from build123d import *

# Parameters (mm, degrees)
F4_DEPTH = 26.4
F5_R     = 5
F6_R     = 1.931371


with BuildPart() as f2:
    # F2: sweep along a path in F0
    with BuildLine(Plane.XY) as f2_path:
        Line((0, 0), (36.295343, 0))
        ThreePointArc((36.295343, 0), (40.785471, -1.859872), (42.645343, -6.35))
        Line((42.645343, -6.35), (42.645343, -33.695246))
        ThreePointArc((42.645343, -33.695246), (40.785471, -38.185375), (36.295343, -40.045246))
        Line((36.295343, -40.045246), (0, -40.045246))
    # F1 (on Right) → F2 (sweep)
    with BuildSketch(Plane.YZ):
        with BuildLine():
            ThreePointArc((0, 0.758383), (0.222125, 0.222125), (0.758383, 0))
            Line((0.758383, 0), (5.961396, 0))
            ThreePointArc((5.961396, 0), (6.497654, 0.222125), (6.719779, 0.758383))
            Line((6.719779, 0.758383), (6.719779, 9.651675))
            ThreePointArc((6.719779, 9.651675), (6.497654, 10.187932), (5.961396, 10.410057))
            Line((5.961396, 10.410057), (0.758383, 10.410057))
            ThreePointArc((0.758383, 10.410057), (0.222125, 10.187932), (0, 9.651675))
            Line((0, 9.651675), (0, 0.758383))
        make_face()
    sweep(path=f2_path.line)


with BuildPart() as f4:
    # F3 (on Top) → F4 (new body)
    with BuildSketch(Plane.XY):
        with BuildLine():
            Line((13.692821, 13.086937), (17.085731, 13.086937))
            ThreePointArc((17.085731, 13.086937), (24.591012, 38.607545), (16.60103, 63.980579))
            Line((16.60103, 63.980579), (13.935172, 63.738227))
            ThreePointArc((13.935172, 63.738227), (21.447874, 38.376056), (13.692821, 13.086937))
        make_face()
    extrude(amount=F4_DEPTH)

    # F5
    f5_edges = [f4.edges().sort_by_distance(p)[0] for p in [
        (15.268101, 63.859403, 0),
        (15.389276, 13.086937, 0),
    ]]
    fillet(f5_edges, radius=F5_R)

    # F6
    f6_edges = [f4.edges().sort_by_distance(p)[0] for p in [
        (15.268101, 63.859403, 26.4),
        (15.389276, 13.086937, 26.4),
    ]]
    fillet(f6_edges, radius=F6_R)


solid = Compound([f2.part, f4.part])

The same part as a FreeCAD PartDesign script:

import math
import FreeCAD as App
import Part
import Sketcher
from FreeCAD import Vector


def edges_at(feature, points):
    """Names of the edges that pass closest to the given points."""
    edges = feature.Shape.Edges
    near = lambda p: min(range(len(edges)), key=lambda i: edges[i].distToShape(Part.Vertex(*p))[0])
    return sorted({f"Edge{near(p) + 1}" for p in points})

doc = App.newDocument("Part")
params = doc.addObject("Spreadsheet::Sheet", "Params")
for row, (alias, value) in enumerate([
    ("sketch2_radius", "6.35 mm"),
    ("pad1_length", "26.4 mm"),
    ("fillet_radius", "5 mm"),
    ("fillet2_radius", "1.931371 mm"),
], start=1):
    params.set(f"A{row}", alias)
    params.set(f"B{row}", "=" + value)
    params.setAlias(f"B{row}", alias)

body = doc.addObject("PartDesign::Body", "Body")

# Sketch on YZ plane
sketch1 = body.newObject("Sketcher::SketchObject", "Sketch")
sketch1.AttachmentSupport = (doc.getObject("YZ_Plane"), [""])
sketch1.MapMode = "FlatFace"
sketch1.addGeometry([
    Part.ArcOfCircle(Part.Circle(Vector(0.758382, 0.758382, 0), Vector(0, 0, 1), 0.758382), math.radians(179.999939), math.radians(270.000061)),  # 0
    Part.LineSegment(Vector(0.758383, 0, 0), Vector(5.961396, 0, 0)),  # 1
    Part.ArcOfCircle(Part.Circle(Vector(5.961397, 0.758382, 0), Vector(0, 0, 1), 0.758382), math.radians(-90.000061), math.radians(0.000061)),  # 2
    Part.LineSegment(Vector(6.719779, 0.758383, 0), Vector(6.719779, 9.651675, 0)),  # 3
    Part.ArcOfCircle(Part.Circle(Vector(5.961397, 9.651675, 0), Vector(0, 0, 1), 0.758382), math.radians(0.000014), math.radians(90.000061)),  # 4
    Part.LineSegment(Vector(5.961396, 10.410057, 0), Vector(0.758383, 10.410057, 0)),  # 5
    Part.ArcOfCircle(Part.Circle(Vector(0.758382, 9.651675, 0), Vector(0, 0, 1), 0.758382), math.radians(89.999939), math.radians(179.999986)),  # 6
    Part.LineSegment(Vector(0, 9.651675, 0), Vector(0, 0.758383, 0)),  # 7
], False)
sketch1.addConstraint([
    Sketcher.Constraint("Tangent", 0, 2, 1, 1),
    Sketcher.Constraint("Tangent", 1, 2, 2, 1),
    Sketcher.Constraint("Tangent", 2, 2, 3, 1),
    Sketcher.Constraint("Tangent", 3, 2, 4, 1),
    Sketcher.Constraint("Tangent", 4, 2, 5, 1),
    Sketcher.Constraint("Tangent", 5, 2, 6, 1),
    Sketcher.Constraint("Tangent", 6, 2, 7, 1),
    Sketcher.Constraint("Tangent", 7, 2, 0, 1),
    Sketcher.Constraint("Horizontal", 1),
    Sketcher.Constraint("Vertical", 3),
    Sketcher.Constraint("Horizontal", 5),
    Sketcher.Constraint("Vertical", 7),
    Sketcher.Constraint("Equal", 0, 2),
    Sketcher.Constraint("Equal", 2, 4),
    Sketcher.Constraint("Equal", 4, 6),
    Sketcher.Constraint("PointOnObject", 0, 2, -1),
    Sketcher.Constraint("PointOnObject", 6, 2, -2),
    Sketcher.Constraint("Radius", 0, 0.758382),
    Sketcher.Constraint("DistanceY", 3, 1, 3, 2, 8.893292),
    Sketcher.Constraint("DistanceX", 1, 1, 1, 2, 5.203013),
])

# Sketch on XY plane
sketch2 = body.newObject("Sketcher::SketchObject", "Sketch001")
sketch2.AttachmentSupport = (doc.getObject("XY_Plane"), [""])
sketch2.MapMode = "FlatFace"
sketch2.addGeometry([
    Part.LineSegment(Vector(0, 0, 0), Vector(36.295343, 0, 0)),  # 0
    Part.ArcOfCircle(Part.Circle(Vector(36.295343, -6.35, 0), Vector(0, 0, 1), 6.35), math.radians(0.000002), math.radians(89.999998)),  # 1
    Part.LineSegment(Vector(42.645343, -6.35, 0), Vector(42.645343, -33.695246, 0)),  # 2
    Part.ArcOfCircle(Part.Circle(Vector(36.295344, -33.695248, 0), Vector(0, 0, 1), 6.349998), math.radians(-90.000014), math.radians(0.000014)),  # 3
    Part.LineSegment(Vector(36.295343, -40.045246, 0), Vector(0, -40.045246, 0)),  # 4
], False)
sketch2.addConstraint([
    Sketcher.Constraint("Tangent", 0, 2, 1, 2),
    Sketcher.Constraint("Tangent", 1, 1, 2, 1),
    Sketcher.Constraint("Tangent", 2, 2, 3, 2),
    Sketcher.Constraint("Tangent", 3, 1, 4, 1),
    Sketcher.Constraint("Horizontal", 0),
    Sketcher.Constraint("Vertical", 2),
    Sketcher.Constraint("Horizontal", 4),
    Sketcher.Constraint("Coincident", 0, 1, -1, 1),
    Sketcher.Constraint("Equal", 1, 3),
    Sketcher.Constraint("PointOnObject", 4, 2, -2),
    Sketcher.Constraint("Radius", 1, 6.35),
    Sketcher.Constraint("DistanceX", 0, 1, 0, 2, 36.295343),
    Sketcher.Constraint("DistanceY", 2, 2, 2, 1, 27.345246),
])
sketch2.setExpression("Constraints[10]", "Params.sketch2_radius")
doc.recompute()

additivepipe = body.newObject("PartDesign::AdditivePipe", "AdditivePipe")
additivepipe.Profile = sketch1
additivepipe.Spine = (sketch2, ["Edge1", "Edge2", "Edge3", "Edge4", "Edge5"])
body2 = doc.addObject("PartDesign::Body", "Body001")

# Sketch on XY plane
sketch3 = body2.newObject("Sketcher::SketchObject", "Sketch002")
sketch3.AttachmentSupport = (doc.getObject("XY_Plane001"), [""])
sketch3.MapMode = "FlatFace"
sketch3.addGeometry([
    Part.LineSegment(Vector(13.692821, 13.086937, 0), Vector(17.085731, 13.086937, 0)),
    Part.ArcOfCircle(Part.Circle(Vector(-21.072394, 38.172656, 0), Vector(0, 0, 1), 45.665477), math.radians(-33.321514), math.radians(34.412828)),
    Part.LineSegment(Vector(16.60103, 63.980579, 0), Vector(13.935172, 63.738227, 0)),
    Part.ArcOfCircle(Part.Circle(Vector(-24.378404, 38.595321, 0), Vector(0, 0, 1), 45.826802), math.radians(-33.822774), math.radians(33.274493)),
], False)
sketch3.addConstraint([
    Sketcher.Constraint("Coincident", 0, 2, 1, 1),
    Sketcher.Constraint("Coincident", 1, 2, 2, 1),
    Sketcher.Constraint("Coincident", 2, 2, 3, 2),
    Sketcher.Constraint("Coincident", 3, 1, 0, 1),
    Sketcher.Constraint("Horizontal", 0),
    Sketcher.Constraint("Radius", 1, 45.665477),
    Sketcher.Constraint("Radius", 3, 45.826802),
    Sketcher.Constraint("DistanceX", 0, 1, 0, 2, 3.39291),
    Sketcher.Constraint("DistanceX", 1, 2, 0, 2, 0.484701),
    Sketcher.Constraint("Distance", 2, 2.676851),
    Sketcher.Constraint("DistanceY", -1, 1, 3, 3, 38.595321),
    Sketcher.Constraint("DistanceX", -1, 1, 0, 2, 17.085731),
    Sketcher.Constraint("DistanceY", -1, 1, 1, 2, 63.980579),
    Sketcher.Constraint("DistanceX", 3, 3, 1, 3, 3.306009),
])
pad1 = body2.newObject("PartDesign::Pad", "Pad")
pad1.Profile = sketch3
pad1.setExpression("Length", "Params.pad1_length")
doc.recompute()

fillet = body2.newObject("PartDesign::Fillet", "Fillet")
fillet.Base = (pad1, edges_at(pad1, [(15.268, 63.859, 0), (15.389, 13.087, 0)]))
fillet.setExpression("Radius", "Params.fillet_radius")
doc.recompute()

fillet2 = body2.newObject("PartDesign::Fillet", "Fillet001")
fillet2.Base = (fillet, edges_at(fillet, [(15.268, 63.859, 26.4), (15.389, 13.087, 26.4)]))
fillet2.setExpression("Radius", "Params.fillet2_radius")

doc.recompute()
